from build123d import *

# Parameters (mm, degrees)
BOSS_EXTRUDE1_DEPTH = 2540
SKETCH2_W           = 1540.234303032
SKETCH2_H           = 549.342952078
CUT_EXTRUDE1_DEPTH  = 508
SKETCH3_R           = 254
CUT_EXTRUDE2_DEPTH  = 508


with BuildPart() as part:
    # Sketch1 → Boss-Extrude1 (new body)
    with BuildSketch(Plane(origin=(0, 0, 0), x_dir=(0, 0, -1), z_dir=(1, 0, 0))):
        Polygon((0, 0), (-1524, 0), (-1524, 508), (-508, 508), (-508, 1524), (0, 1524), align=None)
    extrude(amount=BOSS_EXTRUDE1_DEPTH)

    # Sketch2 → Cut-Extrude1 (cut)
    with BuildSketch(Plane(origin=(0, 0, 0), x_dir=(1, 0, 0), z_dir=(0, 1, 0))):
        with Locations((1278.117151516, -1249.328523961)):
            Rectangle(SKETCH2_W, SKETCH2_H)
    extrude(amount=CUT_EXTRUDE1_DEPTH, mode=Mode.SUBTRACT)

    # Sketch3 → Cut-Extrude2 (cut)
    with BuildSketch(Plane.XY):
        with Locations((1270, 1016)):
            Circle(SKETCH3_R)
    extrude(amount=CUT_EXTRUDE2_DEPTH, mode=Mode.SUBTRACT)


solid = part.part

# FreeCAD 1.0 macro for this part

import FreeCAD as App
import Part
import Sketcher

V = App.Vector
Q = App.Units.Quantity

doc = App.newDocument("Part")
body = doc.addObject("PartDesign::Body", "Body")

# Sketch on YZ plane
sketch1 = body.newObject("Sketcher::SketchObject", "Sketch")
sketch1.AttachmentSupport = (doc.getObject("YZ_Plane"), [""])
sketch1.MapMode = "FlatFace"
sketch1.addGeometry(Part.LineSegment(V(0, 1524, 0), V(0, 0, 0)), False)
sketch1.addGeometry(Part.LineSegment(V(0, 0, 0), V(1524, 0, 0)), False)
sketch1.addGeometry(Part.LineSegment(V(1524, 0, 0), V(1524, 508, 0)), False)
sketch1.addGeometry(Part.LineSegment(V(1524, 508, 0), V(508, 508, 0)), False)
sketch1.addGeometry(Part.LineSegment(V(508, 508, 0), V(508, 1524, 0)), False)
sketch1.addGeometry(Part.LineSegment(V(508, 1524, 0), V(0, 1524, 0)), False)
sketch1.addConstraint(Sketcher.Constraint("Coincident", 0, 2, 1, 1))
sketch1.addConstraint(Sketcher.Constraint("Coincident", 1, 2, 2, 1))
sketch1.addConstraint(Sketcher.Constraint("Coincident", 2, 2, 3, 1))
sketch1.addConstraint(Sketcher.Constraint("Coincident", 3, 2, 4, 1))
sketch1.addConstraint(Sketcher.Constraint("Coincident", 4, 2, 5, 1))
sketch1.addConstraint(Sketcher.Constraint("Coincident", 5, 2, 0, 1))
sketch1.addConstraint(Sketcher.Constraint("Vertical", 0))
sketch1.addConstraint(Sketcher.Constraint("Horizontal", 1))
sketch1.addConstraint(Sketcher.Constraint("Vertical", 2))
sketch1.addConstraint(Sketcher.Constraint("Horizontal", 3))
sketch1.addConstraint(Sketcher.Constraint("Vertical", 4))
sketch1.addConstraint(Sketcher.Constraint("Horizontal", 5))
sketch1.addConstraint(Sketcher.Constraint("Coincident", 0, 2, -1, 1))
sketch1.addConstraint(Sketcher.Constraint("Equal", 1, 0))
sketch1.addConstraint(Sketcher.Constraint("Equal", 5, 2))
sketch1.addConstraint(Sketcher.Constraint("DistanceX", 1, 1, 1, 2, Q("60 in")))
sketch1.addConstraint(Sketcher.Constraint("DistanceX", 3, 2, 3, 1, Q("40 in")))
pad1 = body.newObject("PartDesign::Pad", "Pad")
pad1.Profile = sketch1
pad1.Length = Q("100 in")

# Sketch on XZ plane
sketch2 = body.newObject("Sketcher::SketchObject", "Sketch001")
sketch2.AttachmentSupport = (doc.getObject("XZ_Plane"), [""])
sketch2.MapMode = "FlatFace"
sketch2.addGeometry(Part.LineSegment(V(508, 974.657048, 0), V(508, 1524, 0)), False)
sketch2.addGeometry(Part.LineSegment(V(508, 1524, 0), V(2048.234303, 1524, 0)), False)
sketch2.addGeometry(Part.LineSegment(V(2048.234303, 1524, 0), V(2048.234303, 974.657048, 0)), False)
sketch2.addGeometry(Part.LineSegment(V(2048.234303, 974.657048, 0), V(508, 974.657048, 0)), False)
sketch2.addConstraint(Sketcher.Constraint("Coincident", 0, 2, 1, 1))
sketch2.addConstraint(Sketcher.Constraint("Coincident", 1, 2, 2, 1))
sketch2.addConstraint(Sketcher.Constraint("Coincident", 2, 2, 3, 1))
sketch2.addConstraint(Sketcher.Constraint("Coincident", 3, 2, 0, 1))
sketch2.addConstraint(Sketcher.Constraint("Vertical", 0))
sketch2.addConstraint(Sketcher.Constraint("Horizontal", 1))
sketch2.addConstraint(Sketcher.Constraint("Vertical", 2))
sketch2.addConstraint(Sketcher.Constraint("Horizontal", 3))
sketch2.addConstraint(Sketcher.Constraint("DistanceX", -1, 1, 0, 2, Q("20 in")))
sketch2.addConstraint(Sketcher.Constraint("DistanceY", -1, 1, 0, 2, Q("60 in")))
sketch2.addConstraint(Sketcher.Constraint("DistanceX", 1, 1, 1, 2, Q("1540.234303 mm")))
sketch2.addConstraint(Sketcher.Constraint("DistanceY", 0, 1, 0, 2, Q("549.342952 mm")))
pocket1 = body.newObject("PartDesign::Pocket", "Pocket")
pocket1.Profile = sketch2
pocket1.Length = Q("20 in")

# Sketch on XY plane
sketch3 = body.newObject("Sketcher::SketchObject", "Sketch002")
sketch3.AttachmentSupport = (doc.getObject("XY_Plane"), [""])
sketch3.MapMode = "FlatFace"
sketch3.addGeometry(Part.Circle(V(1270, 1016, 0), V(0, 0, 1), 254), False)
sketch3.addConstraint(Sketcher.Constraint("Diameter", 0, Q("20 in")))
sketch3.addConstraint(Sketcher.Constraint("DistanceX", -1, 1, 0, 3, Q("50 in")))
sketch3.addConstraint(Sketcher.Constraint("DistanceY", -1, 1, 0, 3, Q("40 in")))
pocket2 = body.newObject("PartDesign::Pocket", "Pocket001")
pocket2.Profile = sketch3
pocket2.Length = Q("20 in")
pocket2.Reversed = True

doc.recompute()
